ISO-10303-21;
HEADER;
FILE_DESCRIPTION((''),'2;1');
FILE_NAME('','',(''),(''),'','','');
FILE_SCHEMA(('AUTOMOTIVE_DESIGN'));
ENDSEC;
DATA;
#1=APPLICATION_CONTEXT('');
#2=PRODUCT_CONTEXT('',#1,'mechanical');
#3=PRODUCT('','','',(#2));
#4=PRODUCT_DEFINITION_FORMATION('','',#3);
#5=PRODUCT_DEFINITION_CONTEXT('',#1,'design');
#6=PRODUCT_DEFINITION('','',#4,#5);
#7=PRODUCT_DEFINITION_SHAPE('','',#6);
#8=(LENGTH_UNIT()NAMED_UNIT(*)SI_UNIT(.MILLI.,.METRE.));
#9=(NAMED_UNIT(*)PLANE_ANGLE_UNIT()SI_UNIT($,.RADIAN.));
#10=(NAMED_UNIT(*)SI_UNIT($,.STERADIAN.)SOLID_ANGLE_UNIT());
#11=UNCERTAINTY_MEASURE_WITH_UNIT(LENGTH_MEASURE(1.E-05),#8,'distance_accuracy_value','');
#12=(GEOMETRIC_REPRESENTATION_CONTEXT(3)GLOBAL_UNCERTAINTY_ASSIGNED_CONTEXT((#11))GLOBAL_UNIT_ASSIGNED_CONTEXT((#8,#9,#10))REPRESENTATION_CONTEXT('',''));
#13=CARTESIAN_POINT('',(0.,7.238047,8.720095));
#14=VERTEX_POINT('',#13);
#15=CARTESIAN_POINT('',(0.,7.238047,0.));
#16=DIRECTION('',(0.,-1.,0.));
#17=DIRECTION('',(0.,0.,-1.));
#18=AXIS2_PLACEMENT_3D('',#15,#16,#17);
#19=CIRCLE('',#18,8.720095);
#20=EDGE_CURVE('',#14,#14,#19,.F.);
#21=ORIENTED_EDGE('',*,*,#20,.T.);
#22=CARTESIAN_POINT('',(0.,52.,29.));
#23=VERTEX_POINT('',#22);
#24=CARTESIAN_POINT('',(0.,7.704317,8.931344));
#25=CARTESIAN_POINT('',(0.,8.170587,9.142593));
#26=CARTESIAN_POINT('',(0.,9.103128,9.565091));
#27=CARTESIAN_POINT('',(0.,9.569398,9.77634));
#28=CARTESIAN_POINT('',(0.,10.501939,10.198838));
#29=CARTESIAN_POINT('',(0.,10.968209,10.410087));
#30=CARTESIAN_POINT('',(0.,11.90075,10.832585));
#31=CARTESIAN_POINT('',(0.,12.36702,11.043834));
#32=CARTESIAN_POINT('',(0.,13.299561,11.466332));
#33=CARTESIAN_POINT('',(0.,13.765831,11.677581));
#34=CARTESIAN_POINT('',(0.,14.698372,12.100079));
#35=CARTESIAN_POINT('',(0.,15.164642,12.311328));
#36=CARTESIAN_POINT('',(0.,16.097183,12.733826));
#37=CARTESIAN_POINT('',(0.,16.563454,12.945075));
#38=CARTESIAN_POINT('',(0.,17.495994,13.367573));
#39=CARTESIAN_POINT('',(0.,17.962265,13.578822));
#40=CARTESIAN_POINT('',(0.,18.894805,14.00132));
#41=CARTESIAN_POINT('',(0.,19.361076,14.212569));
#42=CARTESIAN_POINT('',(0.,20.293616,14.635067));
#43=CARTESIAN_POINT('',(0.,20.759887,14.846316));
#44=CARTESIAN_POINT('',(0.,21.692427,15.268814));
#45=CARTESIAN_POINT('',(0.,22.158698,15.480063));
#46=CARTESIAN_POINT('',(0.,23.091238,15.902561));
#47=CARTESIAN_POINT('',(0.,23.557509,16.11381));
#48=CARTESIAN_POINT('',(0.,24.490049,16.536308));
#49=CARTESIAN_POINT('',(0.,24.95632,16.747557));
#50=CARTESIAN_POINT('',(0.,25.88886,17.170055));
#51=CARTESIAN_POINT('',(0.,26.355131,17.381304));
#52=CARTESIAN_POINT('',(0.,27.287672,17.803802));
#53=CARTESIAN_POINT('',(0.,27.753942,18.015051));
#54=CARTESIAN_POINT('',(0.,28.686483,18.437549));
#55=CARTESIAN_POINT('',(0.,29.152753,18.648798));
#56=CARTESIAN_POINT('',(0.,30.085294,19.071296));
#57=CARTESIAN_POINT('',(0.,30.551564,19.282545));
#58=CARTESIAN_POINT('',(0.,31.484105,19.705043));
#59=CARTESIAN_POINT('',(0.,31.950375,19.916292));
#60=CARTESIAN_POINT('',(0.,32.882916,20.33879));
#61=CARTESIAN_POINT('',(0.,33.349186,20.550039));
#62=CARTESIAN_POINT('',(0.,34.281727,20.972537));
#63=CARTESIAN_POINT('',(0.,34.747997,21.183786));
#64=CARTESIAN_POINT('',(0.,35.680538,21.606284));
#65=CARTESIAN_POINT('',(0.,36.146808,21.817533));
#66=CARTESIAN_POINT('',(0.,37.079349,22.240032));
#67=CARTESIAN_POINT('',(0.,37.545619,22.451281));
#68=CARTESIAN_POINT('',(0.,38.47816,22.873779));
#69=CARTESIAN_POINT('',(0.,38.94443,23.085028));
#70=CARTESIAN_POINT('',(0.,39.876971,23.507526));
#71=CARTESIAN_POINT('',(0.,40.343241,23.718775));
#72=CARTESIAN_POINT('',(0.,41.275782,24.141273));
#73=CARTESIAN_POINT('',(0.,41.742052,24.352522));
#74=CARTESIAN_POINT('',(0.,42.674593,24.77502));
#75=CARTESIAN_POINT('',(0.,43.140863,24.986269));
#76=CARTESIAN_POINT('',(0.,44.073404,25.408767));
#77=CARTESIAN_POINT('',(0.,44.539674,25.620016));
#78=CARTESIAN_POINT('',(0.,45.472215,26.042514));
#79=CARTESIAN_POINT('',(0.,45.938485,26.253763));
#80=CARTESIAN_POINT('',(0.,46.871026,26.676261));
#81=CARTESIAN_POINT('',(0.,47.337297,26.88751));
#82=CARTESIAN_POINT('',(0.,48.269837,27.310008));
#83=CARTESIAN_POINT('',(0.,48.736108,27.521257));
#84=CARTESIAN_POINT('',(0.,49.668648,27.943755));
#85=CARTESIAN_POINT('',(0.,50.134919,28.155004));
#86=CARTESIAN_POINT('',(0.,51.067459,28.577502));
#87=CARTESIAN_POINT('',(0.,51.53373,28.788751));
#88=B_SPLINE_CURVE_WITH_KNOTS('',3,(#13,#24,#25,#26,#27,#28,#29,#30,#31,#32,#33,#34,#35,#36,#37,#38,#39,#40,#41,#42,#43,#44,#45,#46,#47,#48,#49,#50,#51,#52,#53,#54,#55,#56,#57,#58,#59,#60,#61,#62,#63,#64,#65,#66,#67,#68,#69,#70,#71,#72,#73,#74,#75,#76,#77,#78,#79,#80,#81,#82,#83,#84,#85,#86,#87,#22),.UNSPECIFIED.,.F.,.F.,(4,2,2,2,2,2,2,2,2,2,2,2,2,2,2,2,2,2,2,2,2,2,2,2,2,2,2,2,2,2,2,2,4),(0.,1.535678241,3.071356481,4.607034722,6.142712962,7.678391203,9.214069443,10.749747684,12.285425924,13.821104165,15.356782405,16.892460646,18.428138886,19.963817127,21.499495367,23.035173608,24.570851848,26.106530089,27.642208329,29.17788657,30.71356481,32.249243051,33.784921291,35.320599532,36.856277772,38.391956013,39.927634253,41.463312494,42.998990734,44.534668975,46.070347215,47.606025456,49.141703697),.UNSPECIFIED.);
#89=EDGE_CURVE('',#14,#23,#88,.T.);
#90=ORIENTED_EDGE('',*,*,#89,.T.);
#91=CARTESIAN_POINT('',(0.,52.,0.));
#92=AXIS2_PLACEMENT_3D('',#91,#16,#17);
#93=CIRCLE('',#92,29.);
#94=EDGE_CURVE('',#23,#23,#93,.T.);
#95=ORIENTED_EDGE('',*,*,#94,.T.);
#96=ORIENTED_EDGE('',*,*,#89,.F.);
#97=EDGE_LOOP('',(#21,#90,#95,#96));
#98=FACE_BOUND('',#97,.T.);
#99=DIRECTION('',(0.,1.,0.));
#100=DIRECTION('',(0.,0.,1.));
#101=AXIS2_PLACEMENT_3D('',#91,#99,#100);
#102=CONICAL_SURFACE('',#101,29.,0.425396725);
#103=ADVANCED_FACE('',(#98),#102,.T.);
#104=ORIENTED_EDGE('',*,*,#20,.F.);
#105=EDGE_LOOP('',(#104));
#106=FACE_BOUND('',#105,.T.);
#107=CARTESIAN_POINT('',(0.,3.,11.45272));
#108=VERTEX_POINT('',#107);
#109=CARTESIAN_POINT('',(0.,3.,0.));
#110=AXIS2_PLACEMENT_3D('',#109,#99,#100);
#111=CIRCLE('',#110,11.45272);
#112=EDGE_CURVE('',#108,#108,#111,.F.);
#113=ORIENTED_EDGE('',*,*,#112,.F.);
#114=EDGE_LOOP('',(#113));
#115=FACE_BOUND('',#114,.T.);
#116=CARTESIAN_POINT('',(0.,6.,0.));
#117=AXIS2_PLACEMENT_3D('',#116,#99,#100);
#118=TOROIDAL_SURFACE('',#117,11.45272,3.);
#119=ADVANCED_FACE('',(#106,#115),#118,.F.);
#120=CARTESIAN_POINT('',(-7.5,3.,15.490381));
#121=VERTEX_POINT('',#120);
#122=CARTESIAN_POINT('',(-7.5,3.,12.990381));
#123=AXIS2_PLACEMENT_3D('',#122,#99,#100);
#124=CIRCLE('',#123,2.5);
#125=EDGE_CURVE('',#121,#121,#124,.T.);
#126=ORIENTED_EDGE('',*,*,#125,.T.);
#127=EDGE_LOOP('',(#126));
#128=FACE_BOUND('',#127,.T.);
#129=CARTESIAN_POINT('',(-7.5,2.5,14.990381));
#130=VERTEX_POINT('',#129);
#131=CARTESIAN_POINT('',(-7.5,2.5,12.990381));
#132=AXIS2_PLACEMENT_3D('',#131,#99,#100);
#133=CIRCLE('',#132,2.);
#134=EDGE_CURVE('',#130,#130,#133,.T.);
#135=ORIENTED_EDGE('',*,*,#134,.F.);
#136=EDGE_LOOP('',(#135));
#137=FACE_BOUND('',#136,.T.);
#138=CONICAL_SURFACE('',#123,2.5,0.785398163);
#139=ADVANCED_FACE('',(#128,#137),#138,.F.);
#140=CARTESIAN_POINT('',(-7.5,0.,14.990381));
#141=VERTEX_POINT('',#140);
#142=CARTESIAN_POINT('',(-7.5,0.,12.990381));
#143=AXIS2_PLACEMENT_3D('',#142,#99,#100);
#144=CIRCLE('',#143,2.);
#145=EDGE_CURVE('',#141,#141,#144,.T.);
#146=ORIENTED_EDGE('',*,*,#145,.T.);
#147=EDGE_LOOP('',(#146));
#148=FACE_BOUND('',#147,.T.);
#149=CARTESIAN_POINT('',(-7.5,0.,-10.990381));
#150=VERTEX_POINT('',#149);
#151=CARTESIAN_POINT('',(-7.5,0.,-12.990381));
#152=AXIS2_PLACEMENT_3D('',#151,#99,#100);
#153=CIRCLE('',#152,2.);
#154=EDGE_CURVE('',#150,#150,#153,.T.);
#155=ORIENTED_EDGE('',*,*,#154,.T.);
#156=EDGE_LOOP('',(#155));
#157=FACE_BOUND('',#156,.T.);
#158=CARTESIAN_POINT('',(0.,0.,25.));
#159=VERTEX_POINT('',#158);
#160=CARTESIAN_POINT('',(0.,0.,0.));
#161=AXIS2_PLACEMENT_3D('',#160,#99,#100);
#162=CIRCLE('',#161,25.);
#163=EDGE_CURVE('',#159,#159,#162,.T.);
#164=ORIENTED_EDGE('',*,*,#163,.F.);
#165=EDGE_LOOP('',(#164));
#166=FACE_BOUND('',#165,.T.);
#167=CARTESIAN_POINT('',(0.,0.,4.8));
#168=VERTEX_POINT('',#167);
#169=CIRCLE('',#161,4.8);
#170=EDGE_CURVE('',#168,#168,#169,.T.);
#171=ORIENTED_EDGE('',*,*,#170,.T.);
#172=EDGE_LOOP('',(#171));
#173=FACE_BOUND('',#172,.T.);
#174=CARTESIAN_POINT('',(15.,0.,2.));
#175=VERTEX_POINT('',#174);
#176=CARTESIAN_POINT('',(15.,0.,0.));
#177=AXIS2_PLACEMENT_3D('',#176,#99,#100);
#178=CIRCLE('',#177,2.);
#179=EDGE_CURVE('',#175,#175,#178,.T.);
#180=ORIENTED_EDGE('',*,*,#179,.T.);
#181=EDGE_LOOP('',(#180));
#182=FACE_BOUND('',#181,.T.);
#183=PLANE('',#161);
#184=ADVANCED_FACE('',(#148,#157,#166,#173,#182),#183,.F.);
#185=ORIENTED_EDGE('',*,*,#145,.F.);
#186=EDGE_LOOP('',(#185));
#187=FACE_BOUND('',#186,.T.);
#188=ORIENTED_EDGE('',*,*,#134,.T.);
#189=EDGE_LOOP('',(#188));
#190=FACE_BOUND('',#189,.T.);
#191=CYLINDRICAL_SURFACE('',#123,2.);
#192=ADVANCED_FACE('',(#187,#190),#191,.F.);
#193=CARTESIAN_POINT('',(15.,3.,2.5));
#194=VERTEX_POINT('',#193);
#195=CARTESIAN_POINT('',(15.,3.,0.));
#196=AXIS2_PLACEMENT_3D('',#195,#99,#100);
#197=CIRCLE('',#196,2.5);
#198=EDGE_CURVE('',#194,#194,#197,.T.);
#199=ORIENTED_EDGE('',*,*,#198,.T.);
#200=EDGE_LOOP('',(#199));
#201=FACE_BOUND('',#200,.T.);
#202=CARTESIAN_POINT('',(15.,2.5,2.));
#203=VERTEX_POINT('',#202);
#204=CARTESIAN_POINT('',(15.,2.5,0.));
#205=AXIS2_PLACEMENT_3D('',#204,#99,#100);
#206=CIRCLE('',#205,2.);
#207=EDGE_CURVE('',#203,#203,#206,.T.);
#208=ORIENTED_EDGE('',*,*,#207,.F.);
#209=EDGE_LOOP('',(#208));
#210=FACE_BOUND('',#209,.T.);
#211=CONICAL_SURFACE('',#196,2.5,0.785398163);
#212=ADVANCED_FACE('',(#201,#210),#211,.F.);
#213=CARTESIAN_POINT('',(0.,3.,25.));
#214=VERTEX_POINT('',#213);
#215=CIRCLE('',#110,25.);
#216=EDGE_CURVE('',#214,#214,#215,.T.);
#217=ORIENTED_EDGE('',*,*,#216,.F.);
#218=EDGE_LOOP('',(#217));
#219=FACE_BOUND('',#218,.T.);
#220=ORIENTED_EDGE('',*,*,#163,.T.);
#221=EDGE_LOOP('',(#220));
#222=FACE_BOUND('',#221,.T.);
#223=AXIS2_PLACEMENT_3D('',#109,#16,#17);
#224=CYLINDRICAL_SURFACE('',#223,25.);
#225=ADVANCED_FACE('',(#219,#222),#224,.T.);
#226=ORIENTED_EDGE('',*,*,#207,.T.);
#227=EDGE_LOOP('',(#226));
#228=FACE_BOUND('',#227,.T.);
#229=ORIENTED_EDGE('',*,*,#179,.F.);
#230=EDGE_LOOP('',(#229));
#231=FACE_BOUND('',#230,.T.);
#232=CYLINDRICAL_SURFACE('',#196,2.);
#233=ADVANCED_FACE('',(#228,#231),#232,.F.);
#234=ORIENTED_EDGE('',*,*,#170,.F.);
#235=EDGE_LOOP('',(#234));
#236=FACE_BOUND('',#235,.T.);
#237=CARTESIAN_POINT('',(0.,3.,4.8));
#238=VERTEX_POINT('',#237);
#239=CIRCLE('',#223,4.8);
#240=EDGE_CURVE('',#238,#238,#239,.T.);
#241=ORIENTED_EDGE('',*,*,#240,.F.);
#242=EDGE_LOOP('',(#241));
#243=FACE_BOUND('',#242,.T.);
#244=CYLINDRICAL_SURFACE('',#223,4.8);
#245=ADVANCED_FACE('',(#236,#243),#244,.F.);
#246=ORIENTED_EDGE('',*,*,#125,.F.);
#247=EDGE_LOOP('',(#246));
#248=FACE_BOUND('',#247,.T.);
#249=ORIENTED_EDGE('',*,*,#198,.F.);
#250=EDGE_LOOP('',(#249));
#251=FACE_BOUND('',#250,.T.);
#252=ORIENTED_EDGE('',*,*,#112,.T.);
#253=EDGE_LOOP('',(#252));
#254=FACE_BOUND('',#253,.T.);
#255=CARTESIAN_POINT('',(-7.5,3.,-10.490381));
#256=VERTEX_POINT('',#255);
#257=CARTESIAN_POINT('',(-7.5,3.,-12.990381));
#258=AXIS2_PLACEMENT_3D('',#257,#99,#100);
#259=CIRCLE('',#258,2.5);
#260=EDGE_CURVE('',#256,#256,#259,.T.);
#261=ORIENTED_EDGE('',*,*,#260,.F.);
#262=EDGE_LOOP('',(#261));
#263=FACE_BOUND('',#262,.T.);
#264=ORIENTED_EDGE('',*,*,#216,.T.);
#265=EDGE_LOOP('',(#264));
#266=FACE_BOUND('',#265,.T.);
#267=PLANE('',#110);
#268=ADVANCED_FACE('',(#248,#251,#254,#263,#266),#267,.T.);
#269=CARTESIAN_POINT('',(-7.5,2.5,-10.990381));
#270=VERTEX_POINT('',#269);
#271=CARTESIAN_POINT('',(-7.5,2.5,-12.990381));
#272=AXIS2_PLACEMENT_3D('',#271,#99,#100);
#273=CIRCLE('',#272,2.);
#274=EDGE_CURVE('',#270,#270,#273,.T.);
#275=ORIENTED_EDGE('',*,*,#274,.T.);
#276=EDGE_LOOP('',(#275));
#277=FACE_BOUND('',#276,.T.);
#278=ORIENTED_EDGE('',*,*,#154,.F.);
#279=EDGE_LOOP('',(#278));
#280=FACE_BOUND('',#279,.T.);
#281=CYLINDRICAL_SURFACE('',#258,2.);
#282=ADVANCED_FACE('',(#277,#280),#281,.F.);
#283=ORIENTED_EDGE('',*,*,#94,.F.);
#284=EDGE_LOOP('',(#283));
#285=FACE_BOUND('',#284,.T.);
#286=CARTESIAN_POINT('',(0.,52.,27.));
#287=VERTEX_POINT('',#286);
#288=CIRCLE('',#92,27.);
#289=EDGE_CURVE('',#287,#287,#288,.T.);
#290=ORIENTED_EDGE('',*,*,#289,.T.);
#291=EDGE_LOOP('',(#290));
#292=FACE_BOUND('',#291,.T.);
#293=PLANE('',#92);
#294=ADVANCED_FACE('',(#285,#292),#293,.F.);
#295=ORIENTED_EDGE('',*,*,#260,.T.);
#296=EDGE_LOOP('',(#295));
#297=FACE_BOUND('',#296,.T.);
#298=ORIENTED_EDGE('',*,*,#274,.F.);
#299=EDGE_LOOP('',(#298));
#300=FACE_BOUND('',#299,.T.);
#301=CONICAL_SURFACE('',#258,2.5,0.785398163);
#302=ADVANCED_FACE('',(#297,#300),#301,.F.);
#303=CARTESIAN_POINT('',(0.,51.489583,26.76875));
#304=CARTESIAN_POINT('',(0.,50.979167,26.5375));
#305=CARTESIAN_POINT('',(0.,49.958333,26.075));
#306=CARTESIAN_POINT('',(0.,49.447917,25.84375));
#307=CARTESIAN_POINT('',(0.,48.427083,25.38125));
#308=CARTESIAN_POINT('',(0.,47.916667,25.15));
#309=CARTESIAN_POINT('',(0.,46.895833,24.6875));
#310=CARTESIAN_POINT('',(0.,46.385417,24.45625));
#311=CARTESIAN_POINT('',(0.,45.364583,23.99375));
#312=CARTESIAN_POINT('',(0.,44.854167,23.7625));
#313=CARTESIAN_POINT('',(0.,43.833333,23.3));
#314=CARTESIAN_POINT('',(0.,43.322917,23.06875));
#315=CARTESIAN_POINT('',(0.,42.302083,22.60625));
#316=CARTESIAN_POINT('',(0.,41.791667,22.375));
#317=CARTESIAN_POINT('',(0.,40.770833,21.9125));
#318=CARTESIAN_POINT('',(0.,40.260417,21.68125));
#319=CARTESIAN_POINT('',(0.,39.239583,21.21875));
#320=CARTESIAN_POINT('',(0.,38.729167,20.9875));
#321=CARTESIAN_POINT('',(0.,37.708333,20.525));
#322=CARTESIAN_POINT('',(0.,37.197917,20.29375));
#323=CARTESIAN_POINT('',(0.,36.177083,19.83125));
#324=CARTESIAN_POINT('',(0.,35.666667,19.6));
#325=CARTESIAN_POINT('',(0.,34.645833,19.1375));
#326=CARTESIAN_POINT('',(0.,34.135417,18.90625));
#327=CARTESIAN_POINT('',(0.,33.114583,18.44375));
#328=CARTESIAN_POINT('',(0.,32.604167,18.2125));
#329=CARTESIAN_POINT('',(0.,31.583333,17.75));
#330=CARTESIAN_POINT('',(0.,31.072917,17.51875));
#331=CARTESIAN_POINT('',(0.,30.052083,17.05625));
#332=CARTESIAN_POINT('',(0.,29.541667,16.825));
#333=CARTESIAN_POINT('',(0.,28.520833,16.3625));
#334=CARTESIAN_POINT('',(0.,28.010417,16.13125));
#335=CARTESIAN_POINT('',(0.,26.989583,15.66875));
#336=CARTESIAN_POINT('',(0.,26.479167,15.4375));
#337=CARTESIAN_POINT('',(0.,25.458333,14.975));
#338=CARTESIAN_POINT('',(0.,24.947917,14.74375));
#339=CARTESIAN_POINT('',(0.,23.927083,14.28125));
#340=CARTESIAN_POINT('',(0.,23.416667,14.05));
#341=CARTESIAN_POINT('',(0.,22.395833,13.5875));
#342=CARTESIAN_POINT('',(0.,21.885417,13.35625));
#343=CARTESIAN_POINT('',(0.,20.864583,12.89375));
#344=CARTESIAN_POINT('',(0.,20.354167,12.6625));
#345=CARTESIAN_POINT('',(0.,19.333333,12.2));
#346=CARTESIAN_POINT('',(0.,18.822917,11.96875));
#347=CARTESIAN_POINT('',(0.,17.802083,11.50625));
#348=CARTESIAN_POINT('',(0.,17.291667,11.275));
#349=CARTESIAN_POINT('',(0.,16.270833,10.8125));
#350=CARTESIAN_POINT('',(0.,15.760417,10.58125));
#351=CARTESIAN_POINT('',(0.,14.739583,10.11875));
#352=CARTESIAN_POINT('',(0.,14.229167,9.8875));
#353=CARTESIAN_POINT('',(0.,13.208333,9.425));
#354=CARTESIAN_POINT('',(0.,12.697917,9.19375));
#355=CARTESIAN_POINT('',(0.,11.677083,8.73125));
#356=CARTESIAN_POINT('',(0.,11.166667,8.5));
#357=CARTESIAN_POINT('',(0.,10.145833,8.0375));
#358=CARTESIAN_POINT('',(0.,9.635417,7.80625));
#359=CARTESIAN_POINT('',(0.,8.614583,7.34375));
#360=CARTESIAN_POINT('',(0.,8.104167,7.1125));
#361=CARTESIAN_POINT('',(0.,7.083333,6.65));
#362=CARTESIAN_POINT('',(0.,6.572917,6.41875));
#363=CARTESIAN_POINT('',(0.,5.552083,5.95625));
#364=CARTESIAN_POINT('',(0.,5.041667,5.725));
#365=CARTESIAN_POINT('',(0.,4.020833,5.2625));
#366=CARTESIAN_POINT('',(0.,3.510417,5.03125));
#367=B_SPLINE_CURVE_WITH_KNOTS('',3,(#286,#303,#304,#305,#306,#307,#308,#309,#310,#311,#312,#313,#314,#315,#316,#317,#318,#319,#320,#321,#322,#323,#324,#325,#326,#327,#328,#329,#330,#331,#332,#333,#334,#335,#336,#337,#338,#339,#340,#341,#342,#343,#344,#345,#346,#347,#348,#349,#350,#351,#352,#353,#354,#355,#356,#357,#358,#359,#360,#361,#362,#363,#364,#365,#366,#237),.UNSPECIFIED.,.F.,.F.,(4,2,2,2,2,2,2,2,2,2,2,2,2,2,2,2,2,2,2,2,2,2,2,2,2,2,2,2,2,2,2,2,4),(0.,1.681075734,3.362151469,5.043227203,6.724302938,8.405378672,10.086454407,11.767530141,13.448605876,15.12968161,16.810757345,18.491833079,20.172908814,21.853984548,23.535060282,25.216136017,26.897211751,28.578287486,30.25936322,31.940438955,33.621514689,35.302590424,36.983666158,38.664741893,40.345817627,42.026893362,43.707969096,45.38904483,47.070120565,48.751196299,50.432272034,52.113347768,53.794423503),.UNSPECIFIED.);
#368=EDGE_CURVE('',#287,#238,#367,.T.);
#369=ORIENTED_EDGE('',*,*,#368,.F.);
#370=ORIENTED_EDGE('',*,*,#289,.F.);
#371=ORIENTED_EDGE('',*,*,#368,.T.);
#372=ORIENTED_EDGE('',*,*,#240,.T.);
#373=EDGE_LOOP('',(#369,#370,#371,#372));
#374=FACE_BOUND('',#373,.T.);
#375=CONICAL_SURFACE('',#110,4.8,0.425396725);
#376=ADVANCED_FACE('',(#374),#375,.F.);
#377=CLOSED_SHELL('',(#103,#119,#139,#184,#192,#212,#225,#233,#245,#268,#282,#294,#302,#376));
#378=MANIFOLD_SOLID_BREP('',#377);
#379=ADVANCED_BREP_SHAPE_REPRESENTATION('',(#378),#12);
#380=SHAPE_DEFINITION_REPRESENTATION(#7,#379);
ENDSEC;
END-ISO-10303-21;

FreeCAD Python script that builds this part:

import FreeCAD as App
import Part
import Sketcher

V = App.Vector


def edges_at(feature, points):
    """Names of the edges that pass closest to the given points."""
    edges = feature.Shape.Edges
    near = lambda p: min(range(len(edges)), key=lambda i: edges[i].distToShape(Part.Vertex(*p))[0])
    return sorted({f"Edge{near(p) + 1}" for p in points})

doc = App.newDocument("Part")
params = doc.addObject("Spreadsheet::Sheet", "Params")
for row, (alias, value) in enumerate([
    ("sketch1_diameter", "50 mm"),
    ("sketch1_diameter2", "9.6 mm"),
    ("pad1_length", "3 mm"),
    ("sketch2_diameter", "4 mm"),
    ("hole_diameter", "4 mm"),
    ("hole_csink_diameter", "5 mm"),
    ("sketch3_width", "2 mm"),
    ("revolution_angle", "360 deg"),
    ("fillet_radius", "3 mm"),
], start=1):
    params.set(f"A{row}", alias)
    params.set(f"B{row}", "=" + value)
    params.setAlias(f"B{row}", alias)

body = doc.addObject("PartDesign::Body", "Body")

sketch1 = doc.addObject("Sketcher::SketchObject", "Sketch")
body.addObject(sketch1)
sketch1.AttachmentSupport = (doc.XZ_Plane, [""])
sketch1.MapMode = "FlatFace"
sketch1.addGeometry([
    Part.Circle(V(0, 0, 0), V(0, 0, 1), 25),
    Part.Circle(V(0, 0, 0), V(0, 0, 1), 4.8),
], False)
sketch1.addConstraint([
    Sketcher.Constraint("Coincident", 0, 3, -1, 1),
    Sketcher.Constraint("Coincident", 1, 3, -1, 1),
    Sketcher.Constraint("Diameter", 0, 50.0),
    Sketcher.Constraint("Diameter", 1, 9.6),
])
sketch1.setExpression("Constraints[2]", "Params.sketch1_diameter")
sketch1.setExpression("Constraints[3]", "Params.sketch1_diameter2")
pad1 = doc.addObject("PartDesign::Pad", "Pad")
body.addObject(pad1)
pad1.Profile = sketch1
pad1.setExpression("Length", "Params.pad1_length")
pad1.Reversed = True

sketch2 = doc.addObject("Sketcher::SketchObject", "Sketch001")
body.addObject(sketch2)
sketch2.AttachmentSupport = (doc.XZ_Plane, [""])
sketch2.MapMode = "FlatFace"
sketch2.AttachmentOffset = App.Placement(V(0, 0, -3), App.Rotation())
sketch2.addGeometry([
    Part.Circle(V(-7.5, -13, 0), V(0, 0, 1), 2),
    Part.Circle(V(15, 0, 0), V(0, 0, 1), 2),
    Part.Circle(V(-7.5, 13, 0), V(0, 0, 1), 2),
], False)
sketch2.addConstraint([
    Sketcher.Constraint("Equal", 0, 1),
    Sketcher.Constraint("Equal", 1, 2),
    Sketcher.Constraint("Symmetric", 0, 3, 2, 3, -1),
    Sketcher.Constraint("PointOnObject", 1, 3, -1),
    Sketcher.Constraint("Diameter", 0, 4.0),
    Sketcher.Constraint("DistanceX", -1, 1, 1, 3, 15.0),
    Sketcher.Constraint("DistanceX", 0, 3, -1, 1, 7.5),
    Sketcher.Constraint("DistanceY", 0, 3, -1, 1, 12.990381),
])
sketch2.setExpression("Constraints[4]", "Params.sketch2_diameter")
doc.recompute()
hole = doc.addObject("PartDesign::Hole", "Hole")
body.addObject(hole)
hole.Profile = sketch2
hole.ThreadType = "None"
hole.setExpression("Diameter", "Params.hole_diameter")
hole.DepthType = "ThroughAll"
hole.HoleCutType = "Countersink"
hole.setExpression("HoleCutDiameter", "Params.hole_csink_diameter")
hole.HoleCutCountersinkAngle = 90
hole.Reversed = True

sketch3 = doc.addObject("Sketcher::SketchObject", "Sketch002")
body.addObject(sketch3)
sketch3.AttachmentSupport = (doc.XY_Plane, [""])
sketch3.MapMode = "FlatFace"
sketch3.addGeometry([
    Part.LineSegment(V(29, 52, 0), V(27, 52, 0)),
    Part.LineSegment(V(27, 52, 0), V(4.8, 3, 0)),
    Part.LineSegment(V(4.8, 3, 0), V(6.8, 3, 0)),
    Part.LineSegment(V(6.8, 3, 0), V(29, 52, 0)),
], False)
sketch3.addConstraint([
    Sketcher.Constraint("Coincident", 0, 2, 1, 1),
    Sketcher.Constraint("Coincident", 1, 2, 2, 1),
    Sketcher.Constraint("Coincident", 2, 2, 3, 1),
    Sketcher.Constraint("Coincident", 3, 2, 0, 1),
    Sketcher.Constraint("Horizontal", 0),
    Sketcher.Constraint("Horizontal", 2),
    Sketcher.Constraint("Parallel", 1, 3),
    Sketcher.Constraint("DistanceX", 0, 2, 0, 1, 2.0),
    Sketcher.Constraint("DistanceX", -1, 1, 0, 2, 27.0),
    Sketcher.Constraint("DistanceY", -1, 1, 0, 2, 52.0),
    Sketcher.Constraint("DistanceY", -1, 1, 1, 2, 3.0),
    Sketcher.Constraint("DistanceX", -1, 1, 1, 2, 4.8),
])
sketch3.setExpression("Constraints[7]", "Params.sketch3_width")
revolution = doc.addObject("PartDesign::Revolution", "Revolution")
body.addObject(revolution)
revolution.Profile = sketch3
revolution.ReferenceAxis = (sketch3, ["V_Axis"])
revolution.setExpression("Angle", "Params.revolution_angle")
doc.recompute()

fillet = doc.addObject("PartDesign::Fillet", "Fillet")
body.addObject(fillet)
fillet.Base = (revolution, edges_at(revolution, [(0, 3, -6.8)]))
fillet.setExpression("Radius", "Params.fillet_radius")

doc.recompute()
